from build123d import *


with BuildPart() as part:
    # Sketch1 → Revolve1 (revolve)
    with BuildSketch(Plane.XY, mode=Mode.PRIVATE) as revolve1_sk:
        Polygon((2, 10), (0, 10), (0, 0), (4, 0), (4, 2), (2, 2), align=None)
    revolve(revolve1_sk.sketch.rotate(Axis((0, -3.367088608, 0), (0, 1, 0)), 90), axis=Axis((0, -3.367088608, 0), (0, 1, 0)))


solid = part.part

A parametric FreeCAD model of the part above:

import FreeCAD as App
import Part
import Sketcher
Q = App.Units.Quantity


def add_polygon(sketch, points):
    """Adds a closed chain of lines whose ends are joined by coincident constraints."""
    first, n = sketch.GeometryCount, len(points)
    for a, b in zip(points, points[1:] + points[:1]):
        sketch.addGeometry(Part.LineSegment(App.Vector(*a, 0), App.Vector(*b, 0)), False)
    for i in range(n):
        sketch.addConstraint(Sketcher.Constraint("Coincident", first + i, 2, first + (i + 1) % n, 1))

doc = App.newDocument("Part")
body = doc.addObject("PartDesign::Body", "Body")

sketch1 = body.newObject("Sketcher::SketchObject", "Sketch")
sketch1.AttachmentSupport = (doc.getObject("XY_Plane"), [""])
sketch1.MapMode = "FlatFace"
add_polygon(sketch1, [(2, 10), (0, 10), (0, 0), (4, 0), (4, 2), (2, 2)])
sketch1.addConstraint(Sketcher.Constraint("Horizontal", 0))
sketch1.addConstraint(Sketcher.Constraint("Vertical", 1))
sketch1.addConstraint(Sketcher.Constraint("Horizontal", 2))
sketch1.addConstraint(Sketcher.Constraint("Vertical", 3))
sketch1.addConstraint(Sketcher.Constraint("Horizontal", 4))
sketch1.addConstraint(Sketcher.Constraint("Vertical", 5))
sketch1.addConstraint(Sketcher.Constraint("Coincident", 1, 2, -1, 1))
sketch1.addConstraint(Sketcher.Constraint("Equal", 0, 4))
sketch1.addConstraint(Sketcher.Constraint("Equal", 4, 3))
sketch1.addConstraint(Sketcher.Constraint("DistanceX", 0, 2, 0, 1, Q("2 mm")))
sketch1.addConstraint(Sketcher.Constraint("DistanceY", 1, 2, 1, 1, Q("10 mm")))
revolution = body.newObject("PartDesign::Revolution", "Revolution")
revolution.Profile = sketch1
revolution.ReferenceAxis = (sketch1, ["V_Axis"])
revolution.Angle = 360

doc.recompute()
